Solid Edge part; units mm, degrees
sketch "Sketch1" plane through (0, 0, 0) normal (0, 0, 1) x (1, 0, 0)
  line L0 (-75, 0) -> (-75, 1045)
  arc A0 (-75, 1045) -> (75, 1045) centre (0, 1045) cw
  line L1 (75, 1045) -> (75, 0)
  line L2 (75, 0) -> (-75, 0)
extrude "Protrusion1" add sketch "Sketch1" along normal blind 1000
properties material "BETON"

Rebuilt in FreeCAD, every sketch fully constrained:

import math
import FreeCAD as App
import Part
import Sketcher
Q = App.Units.Quantity

doc = App.newDocument("Part")
body = doc.addObject("PartDesign::Body", "Body")

# Sketch on XY plane
sketch1 = doc.addObject("Sketcher::SketchObject", "Sketch")
body.addObject(sketch1)
sketch1.AttachmentSupport = (doc.XY_Plane, [""])
sketch1.MapMode = "FlatFace"
sketch1.addGeometry([
    Part.LineSegment(App.Vector(-75, 1045, 0), App.Vector(-75, 0, 0)),
    Part.LineSegment(App.Vector(-75, 0, 0), App.Vector(75, 0, 0)),
    Part.LineSegment(App.Vector(75, 0, 0), App.Vector(75, 1045, 0)),
    Part.ArcOfCircle(Part.Circle(App.Vector(0, 1045, 0), App.Vector(0, 0, 1), 75), math.radians(0), math.radians(180)),
], False)
sketch1.addConstraint([
    Sketcher.Constraint("Coincident", 0, 2, 1, 1),
    Sketcher.Constraint("Coincident", 1, 2, 2, 1),
    Sketcher.Constraint("Tangent", 2, 2, 3, 1),
    Sketcher.Constraint("Tangent", 3, 2, 0, 1),
    Sketcher.Constraint("Vertical", 0),
    Sketcher.Constraint("Horizontal", 1),
    Sketcher.Constraint("Vertical", 2),
    Sketcher.Constraint("Symmetric", 0, 2, 1, 2, -1, 1),
    Sketcher.Constraint("Radius", 3, Q("75 mm")),
    Sketcher.Constraint("DistanceY", 0, 2, 0, 1, Q("1045 mm")),
])
pad1 = doc.addObject("PartDesign::Pad", "Pad")
body.addObject(pad1)
pad1.Profile = sketch1
pad1.Length = 1000

doc.recompute()
